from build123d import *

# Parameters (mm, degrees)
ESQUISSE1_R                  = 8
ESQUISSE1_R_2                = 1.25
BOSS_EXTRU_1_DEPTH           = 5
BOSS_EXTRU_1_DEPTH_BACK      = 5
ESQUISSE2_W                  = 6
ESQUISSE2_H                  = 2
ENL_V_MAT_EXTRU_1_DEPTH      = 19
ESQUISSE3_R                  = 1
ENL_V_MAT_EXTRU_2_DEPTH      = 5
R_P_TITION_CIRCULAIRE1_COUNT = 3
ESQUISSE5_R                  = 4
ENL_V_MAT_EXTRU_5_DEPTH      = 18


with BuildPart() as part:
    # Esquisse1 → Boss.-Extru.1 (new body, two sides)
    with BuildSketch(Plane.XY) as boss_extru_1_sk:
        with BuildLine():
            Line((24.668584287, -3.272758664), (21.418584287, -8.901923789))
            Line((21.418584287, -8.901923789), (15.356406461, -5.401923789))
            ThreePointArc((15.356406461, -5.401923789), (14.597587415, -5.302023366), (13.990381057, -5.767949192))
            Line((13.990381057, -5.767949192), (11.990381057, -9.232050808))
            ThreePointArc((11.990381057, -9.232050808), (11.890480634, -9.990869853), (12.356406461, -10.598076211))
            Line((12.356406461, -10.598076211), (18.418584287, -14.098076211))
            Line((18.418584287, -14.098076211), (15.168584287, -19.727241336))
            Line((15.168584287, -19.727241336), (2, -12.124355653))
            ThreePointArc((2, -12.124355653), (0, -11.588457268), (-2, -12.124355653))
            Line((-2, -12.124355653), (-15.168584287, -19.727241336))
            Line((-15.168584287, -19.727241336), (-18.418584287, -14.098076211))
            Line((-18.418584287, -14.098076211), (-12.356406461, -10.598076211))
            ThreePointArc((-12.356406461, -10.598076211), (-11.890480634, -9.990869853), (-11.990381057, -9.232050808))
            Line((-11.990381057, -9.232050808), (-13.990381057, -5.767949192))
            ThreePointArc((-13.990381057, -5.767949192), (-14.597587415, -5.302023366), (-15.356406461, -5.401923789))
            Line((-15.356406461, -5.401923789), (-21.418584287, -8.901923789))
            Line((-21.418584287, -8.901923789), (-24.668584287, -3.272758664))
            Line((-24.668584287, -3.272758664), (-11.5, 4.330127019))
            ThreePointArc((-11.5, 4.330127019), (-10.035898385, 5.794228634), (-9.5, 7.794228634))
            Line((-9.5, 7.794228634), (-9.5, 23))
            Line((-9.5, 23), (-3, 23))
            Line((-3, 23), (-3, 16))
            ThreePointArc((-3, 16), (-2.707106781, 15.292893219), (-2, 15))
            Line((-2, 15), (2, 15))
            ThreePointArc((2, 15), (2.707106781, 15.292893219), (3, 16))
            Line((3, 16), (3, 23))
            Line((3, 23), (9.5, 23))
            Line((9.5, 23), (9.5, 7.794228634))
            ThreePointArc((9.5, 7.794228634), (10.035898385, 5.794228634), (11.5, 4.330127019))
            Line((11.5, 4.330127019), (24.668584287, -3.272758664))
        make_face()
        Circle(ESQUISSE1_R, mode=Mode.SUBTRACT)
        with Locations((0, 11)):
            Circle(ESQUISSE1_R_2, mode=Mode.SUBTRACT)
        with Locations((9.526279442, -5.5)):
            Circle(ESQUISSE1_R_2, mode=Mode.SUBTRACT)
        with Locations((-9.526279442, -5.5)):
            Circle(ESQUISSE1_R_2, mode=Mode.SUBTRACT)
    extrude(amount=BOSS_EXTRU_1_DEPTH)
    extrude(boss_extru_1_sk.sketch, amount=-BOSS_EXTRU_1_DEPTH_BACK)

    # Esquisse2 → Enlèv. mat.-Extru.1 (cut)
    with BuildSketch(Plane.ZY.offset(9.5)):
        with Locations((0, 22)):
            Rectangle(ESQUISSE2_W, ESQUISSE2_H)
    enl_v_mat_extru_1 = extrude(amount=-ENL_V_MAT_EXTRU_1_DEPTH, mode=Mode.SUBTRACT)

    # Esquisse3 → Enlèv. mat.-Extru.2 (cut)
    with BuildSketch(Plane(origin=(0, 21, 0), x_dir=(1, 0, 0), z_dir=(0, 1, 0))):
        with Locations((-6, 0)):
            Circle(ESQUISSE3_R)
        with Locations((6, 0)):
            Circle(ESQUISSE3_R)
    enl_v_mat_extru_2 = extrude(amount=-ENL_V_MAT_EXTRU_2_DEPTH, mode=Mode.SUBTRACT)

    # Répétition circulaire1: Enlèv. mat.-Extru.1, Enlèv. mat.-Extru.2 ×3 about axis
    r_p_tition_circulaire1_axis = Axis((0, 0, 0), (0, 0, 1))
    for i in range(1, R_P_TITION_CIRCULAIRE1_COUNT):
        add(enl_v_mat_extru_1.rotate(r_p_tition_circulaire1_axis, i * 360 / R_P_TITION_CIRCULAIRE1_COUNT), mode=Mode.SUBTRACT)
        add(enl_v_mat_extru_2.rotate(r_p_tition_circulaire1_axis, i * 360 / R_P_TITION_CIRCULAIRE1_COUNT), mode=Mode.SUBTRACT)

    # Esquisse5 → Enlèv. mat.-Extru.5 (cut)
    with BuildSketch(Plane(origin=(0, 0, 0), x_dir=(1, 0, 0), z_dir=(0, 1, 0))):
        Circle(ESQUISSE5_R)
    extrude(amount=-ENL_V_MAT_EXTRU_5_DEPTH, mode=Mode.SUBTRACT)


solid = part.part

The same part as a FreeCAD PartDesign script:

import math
import FreeCAD as App
import Part
import Sketcher

V = App.Vector


def add_polygon(sketch, points):
    """Adds a closed chain of lines whose ends are joined by coincident constraints."""
    first, n = sketch.GeometryCount, len(points)
    for a, b in zip(points, points[1:] + points[:1]):
        sketch.addGeometry(Part.LineSegment(App.Vector(*a, 0), App.Vector(*b, 0)), False)
    for i in range(n):
        sketch.addConstraint(Sketcher.Constraint("Coincident", first + i, 2, first + (i + 1) % n, 1))

doc = App.newDocument("Part")
params = doc.addObject("Spreadsheet::Sheet", "Params")
for row, (alias, value) in enumerate([
    ("sketch1_diameter", "16 mm"),
    ("sketch1_radius", "4 mm"),
    ("sketch1_radius2", "1 mm"),
    ("sketch1_diameter2", "2.5 mm"),
    ("sketch1_width", "4 mm"),
    ("pad1_length", "5 mm"),
    ("pad1_length2", "5 mm"),
    ("sketch2_width", "2 mm"),
    ("sketch2_height", "6 mm"),
    ("pocket1_length", "19 mm"),
    ("sketch3_diameter", "2 mm"),
    ("pocket2_length", "5 mm"),
    ("sketch4_diameter", "8 mm"),
    ("pocket3_length", "18 mm"),
], start=1):
    params.set(f"A{row}", alias)
    params.set(f"B{row}", "=" + value)
    params.setAlias(f"B{row}", alias)

body = doc.addObject("PartDesign::Body", "Body")

sketch1 = body.newObject("Sketcher::SketchObject", "Sketch")
sketch1.AttachmentSupport = (doc.getObject("XY_Plane"), [""])
sketch1.MapMode = "FlatFace"
sketch1.addGeometry([
    Part.LineSegment(V(21.418584, -8.901924, 0), V(24.668584, -3.272759, 0)),
    Part.LineSegment(V(24.668584, -3.272759, 0), V(11.5, 4.330127, 0)),
    Part.ArcOfCircle(Part.Circle(V(13.5, 7.794229, 0), V(0, 0, 1), 4), math.radians(180), math.radians(240)),
    Part.LineSegment(V(9.5, 7.794229, 0), V(9.5, 23, 0)),
    Part.LineSegment(V(9.5, 23, 0), V(3, 23, 0)),
    Part.LineSegment(V(3, 23, 0), V(3, 16, 0)),
    Part.ArcOfCircle(Part.Circle(V(2, 16, 0), V(0, 0, 1), 1), math.radians(-90), math.radians(0)),
    Part.LineSegment(V(2, 15, 0), V(-2, 15, 0)),
    Part.ArcOfCircle(Part.Circle(V(-2, 16, 0), V(0, 0, 1), 1), math.radians(-180), math.radians(-90)),
    Part.LineSegment(V(-3, 16, 0), V(-3, 23, 0)),
    Part.LineSegment(V(-3, 23, 0), V(-9.5, 23, 0)),
    Part.LineSegment(V(-9.5, 23, 0), V(-9.5, 7.794229, 0)),
    Part.ArcOfCircle(Part.Circle(V(-13.5, 7.794229, 0), V(0, 0, 1), 4), math.radians(-60), math.radians(0)),
    Part.LineSegment(V(-11.5, 4.330127, 0), V(-24.668584, -3.272759, 0)),
    Part.LineSegment(V(-24.668584, -3.272759, 0), V(-21.418584, -8.901924, 0)),
    Part.LineSegment(V(-21.418584, -8.901924, 0), V(-15.356406, -5.401924, 0)),
    Part.ArcOfCircle(Part.Circle(V(-14.856406, -6.267949, 0), V(0, 0, 1), 1), math.radians(30), math.radians(120)),
    Part.LineSegment(V(-13.990381, -5.767949, 0), V(-11.990381, -9.232051, 0)),
    Part.ArcOfCircle(Part.Circle(V(-12.856406, -9.732051, 0), V(0, 0, 1), 1), math.radians(-60), math.radians(30)),
    Part.LineSegment(V(-12.356406, -10.598076, 0), V(-18.418584, -14.098076, 0)),
    Part.LineSegment(V(-18.418584, -14.098076, 0), V(-15.168584, -19.727241, 0)),
    Part.LineSegment(V(-15.168584, -19.727241, 0), V(-2, -12.124356, 0)),
    Part.ArcOfCircle(Part.Circle(V(0, -15.588457, 0), V(0, 0, 1), 4), math.radians(60), math.radians(120)),
    Part.LineSegment(V(2, -12.124356, 0), V(15.168584, -19.727241, 0)),
    Part.LineSegment(V(15.168584, -19.727241, 0), V(18.418584, -14.098076, 0)),
    Part.LineSegment(V(18.418584, -14.098076, 0), V(12.356406, -10.598076, 0)),
    Part.ArcOfCircle(Part.Circle(V(12.856406, -9.732051, 0), V(0, 0, 1), 1), math.radians(150), math.radians(240)),
    Part.LineSegment(V(11.990381, -9.232051, 0), V(13.990381, -5.767949, 0)),
    Part.ArcOfCircle(Part.Circle(V(14.856406, -6.267949, 0), V(0, 0, 1), 1), math.radians(60), math.radians(150)),
    Part.LineSegment(V(15.356406, -5.401924, 0), V(21.418584, -8.901924, 0)),
    Part.Circle(V(9.526279, -5.5, 0), V(0, 0, 1), 1.25),
    Part.Circle(V(-9.526279, -5.5, 0), V(0, 0, 1), 1.25),
    Part.Circle(V(0, 0, 0), V(0, 0, 1), 8),
    Part.Circle(V(0, 11, 0), V(0, 0, 1), 1.25),
], False)
sketch1.addConstraint([
    Sketcher.Constraint("Coincident", 0, 2, 1, 1),
    Sketcher.Constraint("Tangent", 1, 2, 2, 2),
    Sketcher.Constraint("Tangent", 2, 1, 3, 1),
    Sketcher.Constraint("Coincident", 3, 2, 4, 1),
    Sketcher.Constraint("Coincident", 4, 2, 5, 1),
    Sketcher.Constraint("Tangent", 5, 2, 6, 2),
    Sketcher.Constraint("Tangent", 6, 1, 7, 1),
    Sketcher.Constraint("Tangent", 7, 2, 8, 2),
    Sketcher.Constraint("Tangent", 8, 1, 9, 1),
    Sketcher.Constraint("Coincident", 9, 2, 10, 1),
    Sketcher.Constraint("Coincident", 10, 2, 11, 1),
    Sketcher.Constraint("Tangent", 11, 2, 12, 2),
    Sketcher.Constraint("Tangent", 12, 1, 13, 1),
    Sketcher.Constraint("Coincident", 13, 2, 14, 1),
    Sketcher.Constraint("Coincident", 14, 2, 15, 1),
    Sketcher.Constraint("Tangent", 15, 2, 16, 2),
    Sketcher.Constraint("Tangent", 16, 1, 17, 1),
    Sketcher.Constraint("Tangent", 17, 2, 18, 2),
    Sketcher.Constraint("Tangent", 18, 1, 19, 1),
    Sketcher.Constraint("Coincident", 19, 2, 20, 1),
    Sketcher.Constraint("Coincident", 20, 2, 21, 1),
    Sketcher.Constraint("Tangent", 21, 2, 22, 2),
    Sketcher.Constraint("Tangent", 22, 1, 23, 1),
    Sketcher.Constraint("Coincident", 23, 2, 24, 1),
    Sketcher.Constraint("Coincident", 24, 2, 25, 1),
    Sketcher.Constraint("Tangent", 25, 2, 26, 2),
    Sketcher.Constraint("Tangent", 26, 1, 27, 1),
    Sketcher.Constraint("Tangent", 27, 2, 28, 2),
    Sketcher.Constraint("Tangent", 28, 1, 29, 1),
    Sketcher.Constraint("Coincident", 29, 2, 0, 1),
    Sketcher.Constraint("Vertical", 3),
    Sketcher.Constraint("Horizontal", 4),
    Sketcher.Constraint("Vertical", 5),
    Sketcher.Constraint("Horizontal", 7),
    Sketcher.Constraint("Vertical", 9),
    Sketcher.Constraint("Horizontal", 10),
    Sketcher.Constraint("Vertical", 11),
    Sketcher.Constraint("Coincident", 32, 3, -1, 1),
    Sketcher.Constraint("Equal", 6, 8),
    Sketcher.Constraint("Equal", 2, 12),
    Sketcher.Constraint("Equal", 8, 16),
    Sketcher.Constraint("Equal", 16, 18),
    Sketcher.Constraint("Equal", 12, 22),
    Sketcher.Constraint("Equal", 18, 26),
    Sketcher.Constraint("Equal", 26, 28),
    Sketcher.Constraint("Equal", 30, 31),
    Sketcher.Constraint("Equal", 31, 33),
    Sketcher.Constraint("Symmetric", 2, 3, 12, 3, -2),
    Sketcher.Constraint("Symmetric", 18, 3, 26, 3, -2),
    Sketcher.Constraint("Symmetric", 16, 3, 28, 3, -2),
    Sketcher.Constraint("Symmetric", 30, 3, 31, 3, -2),
    Sketcher.Constraint("Symmetric", 4, 2, 9, 2, -2),
    Sketcher.Constraint("Symmetric", 0, 2, 13, 2, -2),
    Sketcher.Constraint("Symmetric", 21, 2, 22, 1, -2),
    Sketcher.Constraint("Symmetric", 19, 2, 24, 2, -2),
    Sketcher.Constraint("Symmetric", 14, 2, 29, 2, -2),
    Sketcher.Constraint("PointOnObject", 33, 3, -2),
    Sketcher.Constraint("Perpendicular", 0, 1),
    Sketcher.Constraint("Perpendicular", 14, 15),
    Sketcher.Constraint("Perpendicular", 15, 17),
    Sketcher.Constraint("Perpendicular", 17, 19),
    Sketcher.Constraint("Perpendicular", 19, 20),
    Sketcher.Constraint("Perpendicular", 20, 21),
    Sketcher.Constraint("Perpendicular", 23, 24),
    Sketcher.Constraint("Vertical", 7, 2, 21, 2),
    Sketcher.Constraint("Equal", 15, 19),
    Sketcher.Constraint("Equal", 14, 20),
    Sketcher.Constraint("Equal", 13, 21),
    Sketcher.Constraint("Diameter", 32, 16.0),
    Sketcher.Constraint("Radius", 2, 4.0),
    Sketcher.Constraint("Radius", 6, 1.0),
    Sketcher.Constraint("Diameter", 30, 2.5),
    Sketcher.Constraint("DistanceX", 7, 2, 7, 1, 4.0),
    Sketcher.Constraint("DistanceY", 5, 2, 5, 1, 7.0),
    Sketcher.Constraint("Distance", 15, 7.0),
    Sketcher.Constraint("Distance", 17, 4.0),
    Sketcher.Constraint("DistanceX", 4, 2, 4, 1, 6.5),
    Sketcher.Constraint("DistanceY", -1, 1, 6, 3, 16.0),
    Sketcher.Constraint("DistanceY", -1, 1, 33, 3, 11.0),
    Sketcher.Constraint("DistanceY", 30, 3, -1, 1, 5.5),
    Sketcher.Constraint("DistanceY", 3, 1, 3, 2, 15.205771),
    Sketcher.Constraint("DistanceX", 16, 1, 31, 3, 4.464102),
    Sketcher.Constraint("Distance", 1, 15.205771),
])
sketch1.setExpression("Constraints[68]", "Params.sketch1_diameter")
sketch1.setExpression("Constraints[69]", "Params.sketch1_radius")
sketch1.setExpression("Constraints[70]", "Params.sketch1_radius2")
sketch1.setExpression("Constraints[71]", "Params.sketch1_diameter2")
sketch1.setExpression("Constraints[72]", "Params.sketch1_width")
pad1 = body.newObject("PartDesign::Pad", "Pad")
pad1.Profile = sketch1
pad1.Type = "TwoLengths"
pad1.setExpression("Length", "Params.pad1_length")
pad1.setExpression("Length2", "Params.pad1_length2")

sketch2 = body.newObject("Sketcher::SketchObject", "Sketch001")
sketch2.AttachmentSupport = (doc.getObject("YZ_Plane"), [""])
sketch2.MapMode = "FlatFace"
sketch2.AttachmentOffset = App.Placement(V(0, 0, -9.5), App.Rotation())
add_polygon(sketch2, [(23, -3), (21, -3), (21, 3), (23, 3)])
sketch2.addConstraint([
    Sketcher.Constraint("Horizontal", 0),
    Sketcher.Constraint("Vertical", 1),
    Sketcher.Constraint("Horizontal", 2),
    Sketcher.Constraint("Vertical", 3),
    Sketcher.Constraint("DistanceX", 0, 2, 0, 1, 2.0),
    Sketcher.Constraint("DistanceY", 1, 1, 1, 2, 6.0),
    Sketcher.Constraint("DistanceX", -1, 1, 0, 2, 21.0),
    Sketcher.Constraint("DistanceY", 0, 2, -1, 1, 3.0),
])
sketch2.setExpression("Constraints[8]", "Params.sketch2_width")
sketch2.setExpression("Constraints[9]", "Params.sketch2_height")
pocket1 = body.newObject("PartDesign::Pocket", "Pocket")
pocket1.Profile = sketch2
pocket1.setExpression("Length", "Params.pocket1_length")
pocket1.Reversed = True

sketch3 = body.newObject("Sketcher::SketchObject", "Sketch002")
sketch3.AttachmentSupport = (doc.getObject("XZ_Plane"), [""])
sketch3.MapMode = "FlatFace"
sketch3.AttachmentOffset = App.Placement(V(0, 0, -21), App.Rotation())
sketch3.addGeometry([
    Part.Circle(V(-6, 0, 0), V(0, 0, 1), 1),
    Part.Circle(V(6, 0, 0), V(0, 0, 1), 1),
], False)
sketch3.addConstraint([
    Sketcher.Constraint("Equal", 0, 1),
    Sketcher.Constraint("Symmetric", 0, 3, 1, 3, -1, 1),
    Sketcher.Constraint("PointOnObject", 0, 3, -1),
    Sketcher.Constraint("Diameter", 0, 2.0),
    Sketcher.Constraint("DistanceX", 0, 3, -1, 1, 6.0),
])
sketch3.setExpression("Constraints[3]", "Params.sketch3_diameter")
pocket2 = body.newObject("PartDesign::Pocket", "Pocket001")
pocket2.Profile = sketch3
pocket2.setExpression("Length", "Params.pocket2_length")
pocket2.Reversed = True
doc.recompute()

polarpattern = body.newObject("PartDesign::PolarPattern", "PolarPattern")
polarpattern.Originals = [pocket1, pocket2]
polarpattern.Axis = (doc.getObject("Z_Axis"), [""])
polarpattern.Angle = 360
polarpattern.Occurrences = 3
body.Tip = polarpattern

sketch4 = body.newObject("Sketcher::SketchObject", "Sketch003")
sketch4.AttachmentSupport = (doc.getObject("XZ_Plane"), [""])
sketch4.MapMode = "FlatFace"
sketch4.addGeometry(Part.Circle(V(0, 0, 0), V(0, 0, 1), 4), False)
sketch4.addConstraint([
    Sketcher.Constraint("Coincident", 0, 3, -1, 1),
    Sketcher.Constraint("Diameter", 0, 8.0),
])
sketch4.setExpression("Constraints[1]", "Params.sketch4_diameter")
pocket3 = body.newObject("PartDesign::Pocket", "Pocket002")
pocket3.Profile = sketch4
pocket3.setExpression("Length", "Params.pocket3_length")
pocket3.Reversed = True

doc.recompute()
